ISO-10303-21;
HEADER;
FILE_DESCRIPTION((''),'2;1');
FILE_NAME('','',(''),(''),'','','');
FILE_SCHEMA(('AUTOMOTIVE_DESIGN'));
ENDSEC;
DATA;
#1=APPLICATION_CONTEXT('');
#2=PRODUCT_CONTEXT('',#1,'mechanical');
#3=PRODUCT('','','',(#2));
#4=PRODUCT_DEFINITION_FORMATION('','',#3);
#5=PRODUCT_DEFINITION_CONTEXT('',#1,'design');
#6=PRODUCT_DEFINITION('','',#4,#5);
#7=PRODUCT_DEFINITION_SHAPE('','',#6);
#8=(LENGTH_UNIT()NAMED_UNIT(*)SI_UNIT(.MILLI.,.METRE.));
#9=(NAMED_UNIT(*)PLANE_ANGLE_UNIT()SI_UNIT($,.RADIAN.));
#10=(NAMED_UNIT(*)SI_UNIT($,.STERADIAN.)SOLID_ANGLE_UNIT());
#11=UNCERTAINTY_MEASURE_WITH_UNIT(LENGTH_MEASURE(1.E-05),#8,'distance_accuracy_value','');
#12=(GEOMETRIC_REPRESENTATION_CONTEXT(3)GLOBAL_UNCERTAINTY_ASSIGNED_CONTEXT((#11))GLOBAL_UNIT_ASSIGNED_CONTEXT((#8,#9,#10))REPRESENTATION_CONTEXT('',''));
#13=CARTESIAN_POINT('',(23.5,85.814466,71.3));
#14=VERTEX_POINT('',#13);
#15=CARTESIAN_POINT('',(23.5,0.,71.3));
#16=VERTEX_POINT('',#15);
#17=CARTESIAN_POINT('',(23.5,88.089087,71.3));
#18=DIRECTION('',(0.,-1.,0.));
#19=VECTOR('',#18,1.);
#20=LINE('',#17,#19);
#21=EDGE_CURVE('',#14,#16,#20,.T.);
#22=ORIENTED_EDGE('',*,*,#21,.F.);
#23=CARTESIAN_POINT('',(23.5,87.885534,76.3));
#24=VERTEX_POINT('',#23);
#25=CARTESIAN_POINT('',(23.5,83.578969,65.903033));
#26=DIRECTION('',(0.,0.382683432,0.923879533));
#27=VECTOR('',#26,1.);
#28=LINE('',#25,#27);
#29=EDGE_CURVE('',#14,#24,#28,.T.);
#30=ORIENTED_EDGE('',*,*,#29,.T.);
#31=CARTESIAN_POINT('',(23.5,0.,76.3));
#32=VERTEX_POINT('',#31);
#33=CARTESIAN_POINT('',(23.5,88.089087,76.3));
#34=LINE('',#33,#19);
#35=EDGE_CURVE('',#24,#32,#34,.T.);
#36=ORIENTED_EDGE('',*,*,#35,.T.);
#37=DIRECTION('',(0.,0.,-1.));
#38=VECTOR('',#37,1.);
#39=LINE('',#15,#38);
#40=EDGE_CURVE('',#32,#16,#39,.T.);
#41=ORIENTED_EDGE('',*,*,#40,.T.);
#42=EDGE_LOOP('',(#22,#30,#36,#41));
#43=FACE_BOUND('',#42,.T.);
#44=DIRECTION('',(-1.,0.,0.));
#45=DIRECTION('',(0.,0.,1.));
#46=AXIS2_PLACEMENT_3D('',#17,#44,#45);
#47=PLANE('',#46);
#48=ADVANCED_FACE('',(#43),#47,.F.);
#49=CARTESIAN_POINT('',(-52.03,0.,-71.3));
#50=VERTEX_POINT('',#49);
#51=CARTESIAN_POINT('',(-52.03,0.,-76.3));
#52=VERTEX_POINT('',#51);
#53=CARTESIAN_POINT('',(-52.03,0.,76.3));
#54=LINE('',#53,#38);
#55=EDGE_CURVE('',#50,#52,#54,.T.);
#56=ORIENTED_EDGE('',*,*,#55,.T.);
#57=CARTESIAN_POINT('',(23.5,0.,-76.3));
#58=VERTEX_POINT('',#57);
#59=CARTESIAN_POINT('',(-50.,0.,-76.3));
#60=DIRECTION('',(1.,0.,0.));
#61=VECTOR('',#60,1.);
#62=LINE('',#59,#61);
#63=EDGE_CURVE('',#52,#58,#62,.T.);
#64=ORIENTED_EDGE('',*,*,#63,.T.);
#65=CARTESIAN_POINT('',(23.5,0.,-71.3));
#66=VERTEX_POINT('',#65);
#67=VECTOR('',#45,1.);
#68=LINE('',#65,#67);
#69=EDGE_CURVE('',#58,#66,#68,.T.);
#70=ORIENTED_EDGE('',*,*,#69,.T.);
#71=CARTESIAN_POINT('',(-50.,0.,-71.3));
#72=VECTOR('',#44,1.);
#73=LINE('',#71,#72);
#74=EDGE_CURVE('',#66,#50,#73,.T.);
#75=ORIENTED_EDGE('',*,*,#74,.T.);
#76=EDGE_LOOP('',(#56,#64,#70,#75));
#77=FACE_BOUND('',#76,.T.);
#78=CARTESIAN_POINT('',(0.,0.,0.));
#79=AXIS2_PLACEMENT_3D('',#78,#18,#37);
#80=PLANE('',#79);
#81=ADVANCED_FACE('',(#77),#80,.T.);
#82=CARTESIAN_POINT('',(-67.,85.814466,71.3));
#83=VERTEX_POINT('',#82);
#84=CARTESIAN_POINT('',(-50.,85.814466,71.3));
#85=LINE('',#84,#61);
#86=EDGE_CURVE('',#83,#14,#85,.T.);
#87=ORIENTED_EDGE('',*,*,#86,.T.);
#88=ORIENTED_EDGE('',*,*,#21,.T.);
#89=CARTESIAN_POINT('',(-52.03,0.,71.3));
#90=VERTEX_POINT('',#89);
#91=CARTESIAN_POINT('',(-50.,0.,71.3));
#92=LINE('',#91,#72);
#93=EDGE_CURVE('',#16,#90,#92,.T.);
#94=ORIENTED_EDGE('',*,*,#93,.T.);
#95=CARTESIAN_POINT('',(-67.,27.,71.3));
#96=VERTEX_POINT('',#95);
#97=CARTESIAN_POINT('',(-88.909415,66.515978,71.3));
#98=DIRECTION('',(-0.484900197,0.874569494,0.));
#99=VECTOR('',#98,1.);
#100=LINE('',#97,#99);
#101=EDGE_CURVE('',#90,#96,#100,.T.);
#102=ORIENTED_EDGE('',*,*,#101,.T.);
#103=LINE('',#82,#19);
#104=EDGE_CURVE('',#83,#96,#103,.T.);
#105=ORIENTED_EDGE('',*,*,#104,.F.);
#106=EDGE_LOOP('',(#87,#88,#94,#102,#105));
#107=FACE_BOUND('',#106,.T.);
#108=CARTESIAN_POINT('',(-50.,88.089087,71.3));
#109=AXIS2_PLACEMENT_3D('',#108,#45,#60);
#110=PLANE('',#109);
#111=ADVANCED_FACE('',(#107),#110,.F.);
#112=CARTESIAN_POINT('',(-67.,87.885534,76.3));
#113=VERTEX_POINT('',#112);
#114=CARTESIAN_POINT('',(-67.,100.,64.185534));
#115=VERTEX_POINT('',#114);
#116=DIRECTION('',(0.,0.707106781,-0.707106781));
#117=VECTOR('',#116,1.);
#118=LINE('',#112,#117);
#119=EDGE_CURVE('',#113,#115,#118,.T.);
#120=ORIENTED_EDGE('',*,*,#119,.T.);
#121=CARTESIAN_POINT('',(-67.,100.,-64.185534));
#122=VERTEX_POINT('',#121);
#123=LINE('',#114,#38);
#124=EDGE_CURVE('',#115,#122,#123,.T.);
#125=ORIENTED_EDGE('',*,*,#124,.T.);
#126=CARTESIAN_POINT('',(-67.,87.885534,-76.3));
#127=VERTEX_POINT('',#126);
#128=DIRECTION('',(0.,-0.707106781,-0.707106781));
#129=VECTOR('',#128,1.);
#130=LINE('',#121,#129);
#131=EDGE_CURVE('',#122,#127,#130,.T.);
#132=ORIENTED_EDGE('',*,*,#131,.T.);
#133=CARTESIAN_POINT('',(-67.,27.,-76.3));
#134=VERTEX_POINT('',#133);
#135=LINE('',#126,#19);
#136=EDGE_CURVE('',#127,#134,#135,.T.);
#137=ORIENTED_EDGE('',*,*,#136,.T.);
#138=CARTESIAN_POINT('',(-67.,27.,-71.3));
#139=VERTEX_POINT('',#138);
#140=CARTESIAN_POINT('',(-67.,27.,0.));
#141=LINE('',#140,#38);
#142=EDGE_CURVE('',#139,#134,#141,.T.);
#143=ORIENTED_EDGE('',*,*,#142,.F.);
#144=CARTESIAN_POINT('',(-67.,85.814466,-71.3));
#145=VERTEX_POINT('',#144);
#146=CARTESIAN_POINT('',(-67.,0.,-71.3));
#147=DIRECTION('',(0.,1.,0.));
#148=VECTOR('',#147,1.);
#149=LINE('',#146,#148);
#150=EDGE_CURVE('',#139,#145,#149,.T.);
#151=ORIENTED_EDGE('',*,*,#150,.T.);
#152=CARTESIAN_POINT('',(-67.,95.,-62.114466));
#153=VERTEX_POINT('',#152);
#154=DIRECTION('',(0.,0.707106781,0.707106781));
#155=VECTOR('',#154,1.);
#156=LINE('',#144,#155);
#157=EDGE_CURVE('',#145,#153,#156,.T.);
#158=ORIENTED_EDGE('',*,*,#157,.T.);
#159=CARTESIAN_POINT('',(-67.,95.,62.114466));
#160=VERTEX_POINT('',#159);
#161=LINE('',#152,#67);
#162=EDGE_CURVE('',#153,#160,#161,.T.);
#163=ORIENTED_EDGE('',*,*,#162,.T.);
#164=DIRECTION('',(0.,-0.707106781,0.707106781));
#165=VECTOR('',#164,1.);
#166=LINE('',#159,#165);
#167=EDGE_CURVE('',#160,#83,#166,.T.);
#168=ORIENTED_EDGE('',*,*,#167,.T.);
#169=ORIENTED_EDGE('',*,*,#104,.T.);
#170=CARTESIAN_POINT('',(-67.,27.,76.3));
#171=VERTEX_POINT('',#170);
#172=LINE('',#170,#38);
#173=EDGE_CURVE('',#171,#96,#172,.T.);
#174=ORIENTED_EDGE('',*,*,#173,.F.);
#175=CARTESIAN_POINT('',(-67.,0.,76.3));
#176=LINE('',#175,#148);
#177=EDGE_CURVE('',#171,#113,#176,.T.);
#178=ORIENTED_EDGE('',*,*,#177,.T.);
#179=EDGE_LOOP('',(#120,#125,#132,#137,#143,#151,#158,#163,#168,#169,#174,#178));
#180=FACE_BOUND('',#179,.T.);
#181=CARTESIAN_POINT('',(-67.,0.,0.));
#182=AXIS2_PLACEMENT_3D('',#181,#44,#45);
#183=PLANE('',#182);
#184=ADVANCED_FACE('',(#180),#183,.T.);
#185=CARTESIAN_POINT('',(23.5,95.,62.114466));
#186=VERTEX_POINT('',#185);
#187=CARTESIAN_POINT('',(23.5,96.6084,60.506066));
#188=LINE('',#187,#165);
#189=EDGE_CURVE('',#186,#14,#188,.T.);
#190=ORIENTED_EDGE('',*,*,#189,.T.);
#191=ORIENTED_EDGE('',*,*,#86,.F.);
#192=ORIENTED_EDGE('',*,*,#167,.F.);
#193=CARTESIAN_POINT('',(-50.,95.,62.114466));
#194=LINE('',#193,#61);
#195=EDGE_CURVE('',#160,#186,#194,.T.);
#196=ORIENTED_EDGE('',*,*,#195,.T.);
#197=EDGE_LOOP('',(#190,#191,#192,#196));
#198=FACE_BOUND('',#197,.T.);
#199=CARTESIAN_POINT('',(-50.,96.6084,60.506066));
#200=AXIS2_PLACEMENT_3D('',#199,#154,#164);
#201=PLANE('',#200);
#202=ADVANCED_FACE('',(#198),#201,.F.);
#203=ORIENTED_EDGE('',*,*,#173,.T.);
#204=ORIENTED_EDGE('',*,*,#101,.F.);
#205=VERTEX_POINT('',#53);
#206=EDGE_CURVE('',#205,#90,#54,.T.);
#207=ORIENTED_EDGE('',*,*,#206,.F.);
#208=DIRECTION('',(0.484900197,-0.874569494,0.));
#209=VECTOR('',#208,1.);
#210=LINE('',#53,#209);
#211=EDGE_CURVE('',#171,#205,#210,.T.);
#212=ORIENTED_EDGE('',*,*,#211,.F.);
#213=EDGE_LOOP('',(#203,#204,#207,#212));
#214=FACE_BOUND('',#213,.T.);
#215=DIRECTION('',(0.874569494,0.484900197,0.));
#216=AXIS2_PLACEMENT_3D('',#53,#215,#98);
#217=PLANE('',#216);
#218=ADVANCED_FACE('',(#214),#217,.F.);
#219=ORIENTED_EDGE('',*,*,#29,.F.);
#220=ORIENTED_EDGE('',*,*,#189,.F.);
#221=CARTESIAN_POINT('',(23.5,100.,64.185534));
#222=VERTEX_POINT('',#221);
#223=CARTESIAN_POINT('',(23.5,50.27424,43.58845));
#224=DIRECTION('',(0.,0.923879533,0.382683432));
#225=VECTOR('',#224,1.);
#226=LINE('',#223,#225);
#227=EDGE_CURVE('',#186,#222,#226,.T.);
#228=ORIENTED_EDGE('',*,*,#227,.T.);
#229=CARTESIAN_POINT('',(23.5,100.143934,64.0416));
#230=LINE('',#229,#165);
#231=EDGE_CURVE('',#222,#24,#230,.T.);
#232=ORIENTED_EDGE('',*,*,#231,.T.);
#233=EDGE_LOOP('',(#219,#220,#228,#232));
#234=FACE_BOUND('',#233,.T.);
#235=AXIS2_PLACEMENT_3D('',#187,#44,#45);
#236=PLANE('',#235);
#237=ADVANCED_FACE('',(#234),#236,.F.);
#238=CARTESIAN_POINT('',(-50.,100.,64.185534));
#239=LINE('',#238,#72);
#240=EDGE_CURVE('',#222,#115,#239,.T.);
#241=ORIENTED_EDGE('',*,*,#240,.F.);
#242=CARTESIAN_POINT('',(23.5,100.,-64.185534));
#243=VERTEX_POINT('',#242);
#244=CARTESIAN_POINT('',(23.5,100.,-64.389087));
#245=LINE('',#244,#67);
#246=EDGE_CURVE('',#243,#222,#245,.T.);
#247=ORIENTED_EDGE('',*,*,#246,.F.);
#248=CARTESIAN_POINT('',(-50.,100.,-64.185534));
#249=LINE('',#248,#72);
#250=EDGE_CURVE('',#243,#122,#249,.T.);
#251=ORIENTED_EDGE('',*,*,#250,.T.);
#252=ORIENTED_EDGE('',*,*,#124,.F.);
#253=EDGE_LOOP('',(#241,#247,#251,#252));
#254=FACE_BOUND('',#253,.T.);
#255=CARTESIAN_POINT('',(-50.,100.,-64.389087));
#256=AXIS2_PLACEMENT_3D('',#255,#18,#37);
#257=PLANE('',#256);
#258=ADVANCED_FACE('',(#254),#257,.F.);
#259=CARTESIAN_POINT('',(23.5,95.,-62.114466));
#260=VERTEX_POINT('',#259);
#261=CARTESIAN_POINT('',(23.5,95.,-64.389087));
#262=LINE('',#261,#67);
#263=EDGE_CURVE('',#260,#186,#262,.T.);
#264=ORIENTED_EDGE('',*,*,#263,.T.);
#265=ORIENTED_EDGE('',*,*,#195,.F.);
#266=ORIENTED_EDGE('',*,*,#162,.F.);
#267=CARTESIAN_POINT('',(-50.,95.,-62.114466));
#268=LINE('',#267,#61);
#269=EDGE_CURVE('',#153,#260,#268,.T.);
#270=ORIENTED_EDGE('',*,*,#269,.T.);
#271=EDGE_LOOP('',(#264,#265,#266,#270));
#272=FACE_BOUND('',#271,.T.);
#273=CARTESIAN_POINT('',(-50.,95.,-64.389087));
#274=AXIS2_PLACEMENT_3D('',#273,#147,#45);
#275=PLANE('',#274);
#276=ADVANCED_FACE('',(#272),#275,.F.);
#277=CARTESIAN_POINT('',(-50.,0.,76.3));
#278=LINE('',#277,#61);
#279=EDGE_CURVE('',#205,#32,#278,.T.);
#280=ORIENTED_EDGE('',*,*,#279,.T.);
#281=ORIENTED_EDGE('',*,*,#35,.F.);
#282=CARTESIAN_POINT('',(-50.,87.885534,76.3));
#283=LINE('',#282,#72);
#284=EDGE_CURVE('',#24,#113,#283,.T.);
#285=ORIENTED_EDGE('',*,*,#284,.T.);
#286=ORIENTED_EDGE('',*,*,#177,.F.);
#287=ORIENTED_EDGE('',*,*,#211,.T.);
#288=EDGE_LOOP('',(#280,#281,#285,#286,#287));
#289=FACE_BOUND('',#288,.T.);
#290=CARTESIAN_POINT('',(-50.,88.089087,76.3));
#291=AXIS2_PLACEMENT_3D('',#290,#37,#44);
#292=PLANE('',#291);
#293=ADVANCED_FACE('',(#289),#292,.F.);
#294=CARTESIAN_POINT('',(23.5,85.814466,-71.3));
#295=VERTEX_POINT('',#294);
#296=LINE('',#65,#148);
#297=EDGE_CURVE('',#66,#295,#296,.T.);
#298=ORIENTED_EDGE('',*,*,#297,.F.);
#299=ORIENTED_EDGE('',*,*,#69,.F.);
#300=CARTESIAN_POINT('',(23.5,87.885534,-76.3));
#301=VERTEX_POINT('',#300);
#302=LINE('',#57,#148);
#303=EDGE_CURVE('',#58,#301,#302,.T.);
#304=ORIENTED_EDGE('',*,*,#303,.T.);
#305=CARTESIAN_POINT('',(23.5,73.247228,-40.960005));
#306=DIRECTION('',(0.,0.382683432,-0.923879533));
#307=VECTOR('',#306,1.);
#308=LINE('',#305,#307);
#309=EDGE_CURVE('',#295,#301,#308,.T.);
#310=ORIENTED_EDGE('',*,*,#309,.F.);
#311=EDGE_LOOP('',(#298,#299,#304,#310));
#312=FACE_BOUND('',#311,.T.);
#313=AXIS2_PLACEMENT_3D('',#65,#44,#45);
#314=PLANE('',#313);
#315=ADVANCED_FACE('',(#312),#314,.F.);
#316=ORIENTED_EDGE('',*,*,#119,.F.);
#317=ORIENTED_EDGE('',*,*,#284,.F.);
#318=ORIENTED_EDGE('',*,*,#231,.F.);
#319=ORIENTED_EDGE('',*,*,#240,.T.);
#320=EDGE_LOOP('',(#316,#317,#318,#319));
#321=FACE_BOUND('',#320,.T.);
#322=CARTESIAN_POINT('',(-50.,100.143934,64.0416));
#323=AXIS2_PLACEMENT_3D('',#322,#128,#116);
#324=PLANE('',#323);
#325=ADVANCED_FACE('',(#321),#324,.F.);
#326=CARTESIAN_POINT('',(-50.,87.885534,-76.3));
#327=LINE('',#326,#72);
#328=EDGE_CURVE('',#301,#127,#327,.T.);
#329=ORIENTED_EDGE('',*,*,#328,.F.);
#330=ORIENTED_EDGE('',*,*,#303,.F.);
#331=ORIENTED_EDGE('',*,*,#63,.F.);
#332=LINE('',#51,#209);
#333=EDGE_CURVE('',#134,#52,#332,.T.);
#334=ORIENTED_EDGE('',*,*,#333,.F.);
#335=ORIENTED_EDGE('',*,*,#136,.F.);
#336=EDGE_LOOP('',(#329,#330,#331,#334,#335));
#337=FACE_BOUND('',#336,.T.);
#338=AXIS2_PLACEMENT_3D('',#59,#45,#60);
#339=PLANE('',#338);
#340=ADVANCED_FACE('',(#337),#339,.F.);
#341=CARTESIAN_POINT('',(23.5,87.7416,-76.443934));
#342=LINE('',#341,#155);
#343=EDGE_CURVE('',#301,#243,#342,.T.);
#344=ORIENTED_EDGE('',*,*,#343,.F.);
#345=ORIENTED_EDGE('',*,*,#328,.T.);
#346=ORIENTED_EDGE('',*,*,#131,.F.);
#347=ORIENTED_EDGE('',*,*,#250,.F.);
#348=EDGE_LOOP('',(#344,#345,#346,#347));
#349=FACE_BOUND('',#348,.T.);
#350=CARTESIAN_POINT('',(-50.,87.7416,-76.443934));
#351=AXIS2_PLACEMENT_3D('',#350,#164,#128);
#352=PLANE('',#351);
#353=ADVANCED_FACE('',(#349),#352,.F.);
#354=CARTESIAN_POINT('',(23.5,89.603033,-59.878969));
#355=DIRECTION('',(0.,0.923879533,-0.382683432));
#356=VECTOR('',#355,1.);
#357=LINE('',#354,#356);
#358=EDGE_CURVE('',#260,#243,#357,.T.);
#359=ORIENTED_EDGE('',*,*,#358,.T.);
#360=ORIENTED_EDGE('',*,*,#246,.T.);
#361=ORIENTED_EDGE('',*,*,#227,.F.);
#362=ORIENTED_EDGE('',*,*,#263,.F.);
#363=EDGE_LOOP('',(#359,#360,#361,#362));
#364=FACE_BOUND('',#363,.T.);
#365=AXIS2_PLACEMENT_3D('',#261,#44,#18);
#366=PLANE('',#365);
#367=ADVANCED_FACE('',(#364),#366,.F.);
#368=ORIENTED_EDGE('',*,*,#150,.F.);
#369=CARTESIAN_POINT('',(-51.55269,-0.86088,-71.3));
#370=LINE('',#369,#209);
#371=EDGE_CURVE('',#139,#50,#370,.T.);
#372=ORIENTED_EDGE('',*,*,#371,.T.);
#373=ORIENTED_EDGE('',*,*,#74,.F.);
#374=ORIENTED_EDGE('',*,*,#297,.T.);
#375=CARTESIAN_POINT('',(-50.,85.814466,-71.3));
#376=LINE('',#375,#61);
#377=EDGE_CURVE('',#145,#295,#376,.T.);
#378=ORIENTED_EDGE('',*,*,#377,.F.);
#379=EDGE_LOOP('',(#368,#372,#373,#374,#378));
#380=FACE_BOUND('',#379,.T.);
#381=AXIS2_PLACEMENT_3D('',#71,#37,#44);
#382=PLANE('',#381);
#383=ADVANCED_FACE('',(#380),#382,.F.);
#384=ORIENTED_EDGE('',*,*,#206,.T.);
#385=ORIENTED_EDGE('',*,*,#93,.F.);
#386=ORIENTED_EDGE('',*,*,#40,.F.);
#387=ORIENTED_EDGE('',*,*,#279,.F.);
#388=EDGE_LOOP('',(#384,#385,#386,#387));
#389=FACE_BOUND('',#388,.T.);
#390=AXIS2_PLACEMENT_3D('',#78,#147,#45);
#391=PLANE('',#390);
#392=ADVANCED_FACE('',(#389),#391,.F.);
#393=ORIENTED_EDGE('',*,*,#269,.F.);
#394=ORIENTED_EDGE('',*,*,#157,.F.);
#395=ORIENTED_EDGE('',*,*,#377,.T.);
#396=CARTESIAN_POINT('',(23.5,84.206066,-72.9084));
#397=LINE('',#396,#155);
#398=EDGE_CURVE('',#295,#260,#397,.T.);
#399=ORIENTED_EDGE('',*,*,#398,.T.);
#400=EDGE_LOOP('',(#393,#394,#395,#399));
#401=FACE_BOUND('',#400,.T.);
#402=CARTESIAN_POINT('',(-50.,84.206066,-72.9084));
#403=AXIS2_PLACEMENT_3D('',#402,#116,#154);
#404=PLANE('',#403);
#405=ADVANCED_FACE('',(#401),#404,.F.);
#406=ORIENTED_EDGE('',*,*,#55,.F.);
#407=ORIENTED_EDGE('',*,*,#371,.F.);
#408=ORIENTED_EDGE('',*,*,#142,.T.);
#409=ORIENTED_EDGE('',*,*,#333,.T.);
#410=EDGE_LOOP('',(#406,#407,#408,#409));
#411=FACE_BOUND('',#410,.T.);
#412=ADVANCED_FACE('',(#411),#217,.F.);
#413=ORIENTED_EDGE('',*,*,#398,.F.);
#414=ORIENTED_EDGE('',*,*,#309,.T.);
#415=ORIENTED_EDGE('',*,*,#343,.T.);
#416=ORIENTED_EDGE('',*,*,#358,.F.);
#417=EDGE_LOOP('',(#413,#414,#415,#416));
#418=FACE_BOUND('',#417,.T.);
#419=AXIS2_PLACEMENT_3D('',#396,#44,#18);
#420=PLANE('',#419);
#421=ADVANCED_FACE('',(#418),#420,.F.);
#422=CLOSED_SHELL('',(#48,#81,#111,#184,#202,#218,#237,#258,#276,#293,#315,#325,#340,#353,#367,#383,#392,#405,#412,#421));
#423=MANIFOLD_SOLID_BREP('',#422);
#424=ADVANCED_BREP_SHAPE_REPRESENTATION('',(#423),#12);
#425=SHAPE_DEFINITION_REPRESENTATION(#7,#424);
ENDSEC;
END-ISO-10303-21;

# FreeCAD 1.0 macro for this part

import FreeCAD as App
import Part
import Sketcher

V = App.Vector
Q = App.Units.Quantity


def add_polygon(sketch, points):
    """Adds a closed chain of lines whose ends are joined by coincident constraints."""
    first, n = sketch.GeometryCount, len(points)
    for a, b in zip(points, points[1:] + points[:1]):
        sketch.addGeometry(Part.LineSegment(App.Vector(*a, 0), App.Vector(*b, 0)), False)
    for i in range(n):
        sketch.addConstraint(Sketcher.Constraint("Coincident", first + i, 2, first + (i + 1) % n, 1))

doc = App.newDocument("Part")
params = doc.addObject("Spreadsheet::Sheet", "Params")
for row, (alias, value) in enumerate([
    ("sketch1_height", "5 mm"),
    ("sketch1_width", "73.5 mm"),
    ("sketch2_height", "126.3 mm"),
    ("sketch2_width", "86.85 mm"),
    ("sketch3_height", "5 mm"),
    ("pad1_length", "17 mm"),
    ("sketch4_height", "27 mm"),
    ("sketch4_width", "14.97 mm"),
], start=1):
    params.set(f"A{row}", alias)
    params.set(f"B{row}", "=" + value)
    params.setAlias(f"B{row}", alias)

body = doc.addObject("PartDesign::Body", "Body")

sketch1 = body.newObject("Sketcher::SketchObject", "Sketch")
sketch1.AttachmentSupport = (doc.getObject("XZ_Plane"), [""])
sketch1.MapMode = "FlatFace"
add_polygon(sketch1, [(-50, 71), (-50, 76), (24, 76), (24, 71)])
sketch1.addConstraint([
    Sketcher.Constraint("Vertical", 0),
    Sketcher.Constraint("Horizontal", 1),
    Sketcher.Constraint("Vertical", 2),
    Sketcher.Constraint("Horizontal", 3),
    Sketcher.Constraint("DistanceY", 0, 1, 0, 2, Q("5 mm")),
    Sketcher.Constraint("DistanceX", 1, 1, 1, 2, Q("73.5 mm")),
    Sketcher.Constraint("DistanceX", 0, 2, -1, 1, Q("50 mm")),
    Sketcher.Constraint("DistanceY", -1, 1, 0, 2, Q("76.3 mm")),
])
sketch1.setExpression("Constraints[8]", "Params.sketch1_height")
sketch1.setExpression("Constraints[9]", "Params.sketch1_width")

sketch2 = body.newObject("Sketcher::SketchObject", "Sketch001")
sketch2.AttachmentSupport = (doc.getObject("YZ_Plane"), [""])
sketch2.MapMode = "FlatFace"
sketch2.addGeometry([
    Part.LineSegment(V(0, 74, 0), V(87, 74, 0)),
    Part.LineSegment(V(87, 74, 0), V(98, 63, 0)),
    Part.LineSegment(V(98, 63, 0), V(98, -63, 0)),
    Part.LineSegment(V(98, -63, 0), V(87, -74, 0)),
    Part.LineSegment(V(87, -74, 0), V(0, -74, 0)),
], False)
sketch2.addConstraint([
    Sketcher.Constraint("Coincident", 0, 2, 1, 1),
    Sketcher.Constraint("Coincident", 1, 2, 2, 1),
    Sketcher.Constraint("Coincident", 2, 2, 3, 1),
    Sketcher.Constraint("Coincident", 3, 2, 4, 1),
    Sketcher.Constraint("Horizontal", 0),
    Sketcher.Constraint("Vertical", 2),
    Sketcher.Constraint("Horizontal", 4),
    Sketcher.Constraint("Symmetric", 0, 1, 4, 2, -1, 1),
    Sketcher.Constraint("PointOnObject", 0, 1, -2),
    Sketcher.Constraint("Perpendicular", 1, 3),
    Sketcher.Constraint("Vertical", 0, 2, 3, 2),
    Sketcher.Constraint("Equal", 1, 3),
    Sketcher.Constraint("DistanceY", 2, 2, 2, 1, Q("126.3 mm")),
    Sketcher.Constraint("DistanceX", 0, 1, 0, 2, Q("86.85 mm")),
    Sketcher.Constraint("DistanceY", -1, 1, 0, 1, Q("73.8 mm")),
])
sketch2.setExpression("Constraints[12]", "Params.sketch2_height")
sketch2.setExpression("Constraints[13]", "Params.sketch2_width")
doc.recompute()

additivepipe = body.newObject("PartDesign::AdditivePipe", "AdditivePipe")
additivepipe.Profile = sketch1
additivepipe.Spine = (sketch2, ["Edge1", "Edge2", "Edge3", "Edge4", "Edge5"])
additivepipe.Transition = "Right corner"

sketch3 = body.newObject("Sketcher::SketchObject", "Sketch002")
sketch3.AttachmentSupport = (doc.getObject("YZ_Plane"), [""])
sketch3.MapMode = "FlatFace"
sketch3.AttachmentOffset = App.Placement(V(0, 0, -50), App.Rotation())
add_polygon(sketch3, [(0, -76), (0, -71), (86, -71), (95, -62), (95, 62), (86, 71), (0, 71), (0, 76), (88, 76), (100, 64), (100, -64), (88, -76)])
sketch3.addConstraint([
    Sketcher.Constraint("Vertical", 0),
    Sketcher.Constraint("Horizontal", 1),
    Sketcher.Constraint("Vertical", 3),
    Sketcher.Constraint("Horizontal", 5),
    Sketcher.Constraint("Vertical", 6),
    Sketcher.Constraint("Horizontal", 7),
    Sketcher.Constraint("Vertical", 9),
    Sketcher.Constraint("Horizontal", 11),
    Sketcher.Constraint("Symmetric", 0, 2, 5, 2, -1, 1),
    Sketcher.Constraint("Symmetric", 7, 2, 10, 2, -1),
    Sketcher.Constraint("PointOnObject", 0, 2, -2),
    Sketcher.Constraint("Perpendicular", 2, 4),
    Sketcher.Constraint("Parallel", 4, 8),
    Sketcher.Constraint("Perpendicular", 8, 10),
    Sketcher.Constraint("Vertical", 1, 2, 4, 2),
    Sketcher.Constraint("Equal", 2, 4),
    Sketcher.Constraint("DistanceY", 0, 1, 0, 2, Q("5 mm")),
    Sketcher.Constraint("DistanceX", -1, 1, 2, 2, Q("95 mm")),
    Sketcher.Constraint("DistanceX", -1, 1, 8, 2, Q("100 mm")),
    Sketcher.Constraint("DistanceY", 0, 2, -1, 1, Q("71.3 mm")),
    Sketcher.Constraint("DistanceY", 9, 2, 3, 2, Q("126.3 mm")),
    Sketcher.Constraint("DistanceX", 1, 1, 1, 2, Q("85.814466 mm")),
])
sketch3.setExpression("Constraints[28]", "Params.sketch3_height")
pad1 = body.newObject("PartDesign::Pad", "Pad")
pad1.Profile = sketch3
pad1.setExpression("Length", "Params.pad1_length")
pad1.Reversed = True

sketch4 = body.newObject("Sketcher::SketchObject", "Sketch003")
sketch4.AttachmentSupport = (doc.getObject("XY_Plane"), [""])
sketch4.MapMode = "FlatFace"
sketch4.AttachmentOffset = App.Placement(V(0, 0, -76.3), App.Rotation())
add_polygon(sketch4, [(-67, 27), (-52, 0), (-67, 0)])
sketch4.addConstraint([
    Sketcher.Constraint("Horizontal", 1),
    Sketcher.Constraint("Vertical", 2),
    Sketcher.Constraint("PointOnObject", 0, 2, -1),
    Sketcher.Constraint("DistanceY", 2, 1, 2, 2, Q("27 mm")),
    Sketcher.Constraint("DistanceX", 1, 2, -1, 1, Q("67 mm")),
    Sketcher.Constraint("DistanceX", 1, 2, 1, 1, Q("14.97 mm")),
])
sketch4.setExpression("Constraints[6]", "Params.sketch4_height")
sketch4.setExpression("Constraints[8]", "Params.sketch4_width")
pocket1 = body.newObject("PartDesign::Pocket", "Pocket")
pocket1.Profile = sketch4
pocket1.Type = "ThroughAll"
pocket1.Reversed = True

doc.recompute()
